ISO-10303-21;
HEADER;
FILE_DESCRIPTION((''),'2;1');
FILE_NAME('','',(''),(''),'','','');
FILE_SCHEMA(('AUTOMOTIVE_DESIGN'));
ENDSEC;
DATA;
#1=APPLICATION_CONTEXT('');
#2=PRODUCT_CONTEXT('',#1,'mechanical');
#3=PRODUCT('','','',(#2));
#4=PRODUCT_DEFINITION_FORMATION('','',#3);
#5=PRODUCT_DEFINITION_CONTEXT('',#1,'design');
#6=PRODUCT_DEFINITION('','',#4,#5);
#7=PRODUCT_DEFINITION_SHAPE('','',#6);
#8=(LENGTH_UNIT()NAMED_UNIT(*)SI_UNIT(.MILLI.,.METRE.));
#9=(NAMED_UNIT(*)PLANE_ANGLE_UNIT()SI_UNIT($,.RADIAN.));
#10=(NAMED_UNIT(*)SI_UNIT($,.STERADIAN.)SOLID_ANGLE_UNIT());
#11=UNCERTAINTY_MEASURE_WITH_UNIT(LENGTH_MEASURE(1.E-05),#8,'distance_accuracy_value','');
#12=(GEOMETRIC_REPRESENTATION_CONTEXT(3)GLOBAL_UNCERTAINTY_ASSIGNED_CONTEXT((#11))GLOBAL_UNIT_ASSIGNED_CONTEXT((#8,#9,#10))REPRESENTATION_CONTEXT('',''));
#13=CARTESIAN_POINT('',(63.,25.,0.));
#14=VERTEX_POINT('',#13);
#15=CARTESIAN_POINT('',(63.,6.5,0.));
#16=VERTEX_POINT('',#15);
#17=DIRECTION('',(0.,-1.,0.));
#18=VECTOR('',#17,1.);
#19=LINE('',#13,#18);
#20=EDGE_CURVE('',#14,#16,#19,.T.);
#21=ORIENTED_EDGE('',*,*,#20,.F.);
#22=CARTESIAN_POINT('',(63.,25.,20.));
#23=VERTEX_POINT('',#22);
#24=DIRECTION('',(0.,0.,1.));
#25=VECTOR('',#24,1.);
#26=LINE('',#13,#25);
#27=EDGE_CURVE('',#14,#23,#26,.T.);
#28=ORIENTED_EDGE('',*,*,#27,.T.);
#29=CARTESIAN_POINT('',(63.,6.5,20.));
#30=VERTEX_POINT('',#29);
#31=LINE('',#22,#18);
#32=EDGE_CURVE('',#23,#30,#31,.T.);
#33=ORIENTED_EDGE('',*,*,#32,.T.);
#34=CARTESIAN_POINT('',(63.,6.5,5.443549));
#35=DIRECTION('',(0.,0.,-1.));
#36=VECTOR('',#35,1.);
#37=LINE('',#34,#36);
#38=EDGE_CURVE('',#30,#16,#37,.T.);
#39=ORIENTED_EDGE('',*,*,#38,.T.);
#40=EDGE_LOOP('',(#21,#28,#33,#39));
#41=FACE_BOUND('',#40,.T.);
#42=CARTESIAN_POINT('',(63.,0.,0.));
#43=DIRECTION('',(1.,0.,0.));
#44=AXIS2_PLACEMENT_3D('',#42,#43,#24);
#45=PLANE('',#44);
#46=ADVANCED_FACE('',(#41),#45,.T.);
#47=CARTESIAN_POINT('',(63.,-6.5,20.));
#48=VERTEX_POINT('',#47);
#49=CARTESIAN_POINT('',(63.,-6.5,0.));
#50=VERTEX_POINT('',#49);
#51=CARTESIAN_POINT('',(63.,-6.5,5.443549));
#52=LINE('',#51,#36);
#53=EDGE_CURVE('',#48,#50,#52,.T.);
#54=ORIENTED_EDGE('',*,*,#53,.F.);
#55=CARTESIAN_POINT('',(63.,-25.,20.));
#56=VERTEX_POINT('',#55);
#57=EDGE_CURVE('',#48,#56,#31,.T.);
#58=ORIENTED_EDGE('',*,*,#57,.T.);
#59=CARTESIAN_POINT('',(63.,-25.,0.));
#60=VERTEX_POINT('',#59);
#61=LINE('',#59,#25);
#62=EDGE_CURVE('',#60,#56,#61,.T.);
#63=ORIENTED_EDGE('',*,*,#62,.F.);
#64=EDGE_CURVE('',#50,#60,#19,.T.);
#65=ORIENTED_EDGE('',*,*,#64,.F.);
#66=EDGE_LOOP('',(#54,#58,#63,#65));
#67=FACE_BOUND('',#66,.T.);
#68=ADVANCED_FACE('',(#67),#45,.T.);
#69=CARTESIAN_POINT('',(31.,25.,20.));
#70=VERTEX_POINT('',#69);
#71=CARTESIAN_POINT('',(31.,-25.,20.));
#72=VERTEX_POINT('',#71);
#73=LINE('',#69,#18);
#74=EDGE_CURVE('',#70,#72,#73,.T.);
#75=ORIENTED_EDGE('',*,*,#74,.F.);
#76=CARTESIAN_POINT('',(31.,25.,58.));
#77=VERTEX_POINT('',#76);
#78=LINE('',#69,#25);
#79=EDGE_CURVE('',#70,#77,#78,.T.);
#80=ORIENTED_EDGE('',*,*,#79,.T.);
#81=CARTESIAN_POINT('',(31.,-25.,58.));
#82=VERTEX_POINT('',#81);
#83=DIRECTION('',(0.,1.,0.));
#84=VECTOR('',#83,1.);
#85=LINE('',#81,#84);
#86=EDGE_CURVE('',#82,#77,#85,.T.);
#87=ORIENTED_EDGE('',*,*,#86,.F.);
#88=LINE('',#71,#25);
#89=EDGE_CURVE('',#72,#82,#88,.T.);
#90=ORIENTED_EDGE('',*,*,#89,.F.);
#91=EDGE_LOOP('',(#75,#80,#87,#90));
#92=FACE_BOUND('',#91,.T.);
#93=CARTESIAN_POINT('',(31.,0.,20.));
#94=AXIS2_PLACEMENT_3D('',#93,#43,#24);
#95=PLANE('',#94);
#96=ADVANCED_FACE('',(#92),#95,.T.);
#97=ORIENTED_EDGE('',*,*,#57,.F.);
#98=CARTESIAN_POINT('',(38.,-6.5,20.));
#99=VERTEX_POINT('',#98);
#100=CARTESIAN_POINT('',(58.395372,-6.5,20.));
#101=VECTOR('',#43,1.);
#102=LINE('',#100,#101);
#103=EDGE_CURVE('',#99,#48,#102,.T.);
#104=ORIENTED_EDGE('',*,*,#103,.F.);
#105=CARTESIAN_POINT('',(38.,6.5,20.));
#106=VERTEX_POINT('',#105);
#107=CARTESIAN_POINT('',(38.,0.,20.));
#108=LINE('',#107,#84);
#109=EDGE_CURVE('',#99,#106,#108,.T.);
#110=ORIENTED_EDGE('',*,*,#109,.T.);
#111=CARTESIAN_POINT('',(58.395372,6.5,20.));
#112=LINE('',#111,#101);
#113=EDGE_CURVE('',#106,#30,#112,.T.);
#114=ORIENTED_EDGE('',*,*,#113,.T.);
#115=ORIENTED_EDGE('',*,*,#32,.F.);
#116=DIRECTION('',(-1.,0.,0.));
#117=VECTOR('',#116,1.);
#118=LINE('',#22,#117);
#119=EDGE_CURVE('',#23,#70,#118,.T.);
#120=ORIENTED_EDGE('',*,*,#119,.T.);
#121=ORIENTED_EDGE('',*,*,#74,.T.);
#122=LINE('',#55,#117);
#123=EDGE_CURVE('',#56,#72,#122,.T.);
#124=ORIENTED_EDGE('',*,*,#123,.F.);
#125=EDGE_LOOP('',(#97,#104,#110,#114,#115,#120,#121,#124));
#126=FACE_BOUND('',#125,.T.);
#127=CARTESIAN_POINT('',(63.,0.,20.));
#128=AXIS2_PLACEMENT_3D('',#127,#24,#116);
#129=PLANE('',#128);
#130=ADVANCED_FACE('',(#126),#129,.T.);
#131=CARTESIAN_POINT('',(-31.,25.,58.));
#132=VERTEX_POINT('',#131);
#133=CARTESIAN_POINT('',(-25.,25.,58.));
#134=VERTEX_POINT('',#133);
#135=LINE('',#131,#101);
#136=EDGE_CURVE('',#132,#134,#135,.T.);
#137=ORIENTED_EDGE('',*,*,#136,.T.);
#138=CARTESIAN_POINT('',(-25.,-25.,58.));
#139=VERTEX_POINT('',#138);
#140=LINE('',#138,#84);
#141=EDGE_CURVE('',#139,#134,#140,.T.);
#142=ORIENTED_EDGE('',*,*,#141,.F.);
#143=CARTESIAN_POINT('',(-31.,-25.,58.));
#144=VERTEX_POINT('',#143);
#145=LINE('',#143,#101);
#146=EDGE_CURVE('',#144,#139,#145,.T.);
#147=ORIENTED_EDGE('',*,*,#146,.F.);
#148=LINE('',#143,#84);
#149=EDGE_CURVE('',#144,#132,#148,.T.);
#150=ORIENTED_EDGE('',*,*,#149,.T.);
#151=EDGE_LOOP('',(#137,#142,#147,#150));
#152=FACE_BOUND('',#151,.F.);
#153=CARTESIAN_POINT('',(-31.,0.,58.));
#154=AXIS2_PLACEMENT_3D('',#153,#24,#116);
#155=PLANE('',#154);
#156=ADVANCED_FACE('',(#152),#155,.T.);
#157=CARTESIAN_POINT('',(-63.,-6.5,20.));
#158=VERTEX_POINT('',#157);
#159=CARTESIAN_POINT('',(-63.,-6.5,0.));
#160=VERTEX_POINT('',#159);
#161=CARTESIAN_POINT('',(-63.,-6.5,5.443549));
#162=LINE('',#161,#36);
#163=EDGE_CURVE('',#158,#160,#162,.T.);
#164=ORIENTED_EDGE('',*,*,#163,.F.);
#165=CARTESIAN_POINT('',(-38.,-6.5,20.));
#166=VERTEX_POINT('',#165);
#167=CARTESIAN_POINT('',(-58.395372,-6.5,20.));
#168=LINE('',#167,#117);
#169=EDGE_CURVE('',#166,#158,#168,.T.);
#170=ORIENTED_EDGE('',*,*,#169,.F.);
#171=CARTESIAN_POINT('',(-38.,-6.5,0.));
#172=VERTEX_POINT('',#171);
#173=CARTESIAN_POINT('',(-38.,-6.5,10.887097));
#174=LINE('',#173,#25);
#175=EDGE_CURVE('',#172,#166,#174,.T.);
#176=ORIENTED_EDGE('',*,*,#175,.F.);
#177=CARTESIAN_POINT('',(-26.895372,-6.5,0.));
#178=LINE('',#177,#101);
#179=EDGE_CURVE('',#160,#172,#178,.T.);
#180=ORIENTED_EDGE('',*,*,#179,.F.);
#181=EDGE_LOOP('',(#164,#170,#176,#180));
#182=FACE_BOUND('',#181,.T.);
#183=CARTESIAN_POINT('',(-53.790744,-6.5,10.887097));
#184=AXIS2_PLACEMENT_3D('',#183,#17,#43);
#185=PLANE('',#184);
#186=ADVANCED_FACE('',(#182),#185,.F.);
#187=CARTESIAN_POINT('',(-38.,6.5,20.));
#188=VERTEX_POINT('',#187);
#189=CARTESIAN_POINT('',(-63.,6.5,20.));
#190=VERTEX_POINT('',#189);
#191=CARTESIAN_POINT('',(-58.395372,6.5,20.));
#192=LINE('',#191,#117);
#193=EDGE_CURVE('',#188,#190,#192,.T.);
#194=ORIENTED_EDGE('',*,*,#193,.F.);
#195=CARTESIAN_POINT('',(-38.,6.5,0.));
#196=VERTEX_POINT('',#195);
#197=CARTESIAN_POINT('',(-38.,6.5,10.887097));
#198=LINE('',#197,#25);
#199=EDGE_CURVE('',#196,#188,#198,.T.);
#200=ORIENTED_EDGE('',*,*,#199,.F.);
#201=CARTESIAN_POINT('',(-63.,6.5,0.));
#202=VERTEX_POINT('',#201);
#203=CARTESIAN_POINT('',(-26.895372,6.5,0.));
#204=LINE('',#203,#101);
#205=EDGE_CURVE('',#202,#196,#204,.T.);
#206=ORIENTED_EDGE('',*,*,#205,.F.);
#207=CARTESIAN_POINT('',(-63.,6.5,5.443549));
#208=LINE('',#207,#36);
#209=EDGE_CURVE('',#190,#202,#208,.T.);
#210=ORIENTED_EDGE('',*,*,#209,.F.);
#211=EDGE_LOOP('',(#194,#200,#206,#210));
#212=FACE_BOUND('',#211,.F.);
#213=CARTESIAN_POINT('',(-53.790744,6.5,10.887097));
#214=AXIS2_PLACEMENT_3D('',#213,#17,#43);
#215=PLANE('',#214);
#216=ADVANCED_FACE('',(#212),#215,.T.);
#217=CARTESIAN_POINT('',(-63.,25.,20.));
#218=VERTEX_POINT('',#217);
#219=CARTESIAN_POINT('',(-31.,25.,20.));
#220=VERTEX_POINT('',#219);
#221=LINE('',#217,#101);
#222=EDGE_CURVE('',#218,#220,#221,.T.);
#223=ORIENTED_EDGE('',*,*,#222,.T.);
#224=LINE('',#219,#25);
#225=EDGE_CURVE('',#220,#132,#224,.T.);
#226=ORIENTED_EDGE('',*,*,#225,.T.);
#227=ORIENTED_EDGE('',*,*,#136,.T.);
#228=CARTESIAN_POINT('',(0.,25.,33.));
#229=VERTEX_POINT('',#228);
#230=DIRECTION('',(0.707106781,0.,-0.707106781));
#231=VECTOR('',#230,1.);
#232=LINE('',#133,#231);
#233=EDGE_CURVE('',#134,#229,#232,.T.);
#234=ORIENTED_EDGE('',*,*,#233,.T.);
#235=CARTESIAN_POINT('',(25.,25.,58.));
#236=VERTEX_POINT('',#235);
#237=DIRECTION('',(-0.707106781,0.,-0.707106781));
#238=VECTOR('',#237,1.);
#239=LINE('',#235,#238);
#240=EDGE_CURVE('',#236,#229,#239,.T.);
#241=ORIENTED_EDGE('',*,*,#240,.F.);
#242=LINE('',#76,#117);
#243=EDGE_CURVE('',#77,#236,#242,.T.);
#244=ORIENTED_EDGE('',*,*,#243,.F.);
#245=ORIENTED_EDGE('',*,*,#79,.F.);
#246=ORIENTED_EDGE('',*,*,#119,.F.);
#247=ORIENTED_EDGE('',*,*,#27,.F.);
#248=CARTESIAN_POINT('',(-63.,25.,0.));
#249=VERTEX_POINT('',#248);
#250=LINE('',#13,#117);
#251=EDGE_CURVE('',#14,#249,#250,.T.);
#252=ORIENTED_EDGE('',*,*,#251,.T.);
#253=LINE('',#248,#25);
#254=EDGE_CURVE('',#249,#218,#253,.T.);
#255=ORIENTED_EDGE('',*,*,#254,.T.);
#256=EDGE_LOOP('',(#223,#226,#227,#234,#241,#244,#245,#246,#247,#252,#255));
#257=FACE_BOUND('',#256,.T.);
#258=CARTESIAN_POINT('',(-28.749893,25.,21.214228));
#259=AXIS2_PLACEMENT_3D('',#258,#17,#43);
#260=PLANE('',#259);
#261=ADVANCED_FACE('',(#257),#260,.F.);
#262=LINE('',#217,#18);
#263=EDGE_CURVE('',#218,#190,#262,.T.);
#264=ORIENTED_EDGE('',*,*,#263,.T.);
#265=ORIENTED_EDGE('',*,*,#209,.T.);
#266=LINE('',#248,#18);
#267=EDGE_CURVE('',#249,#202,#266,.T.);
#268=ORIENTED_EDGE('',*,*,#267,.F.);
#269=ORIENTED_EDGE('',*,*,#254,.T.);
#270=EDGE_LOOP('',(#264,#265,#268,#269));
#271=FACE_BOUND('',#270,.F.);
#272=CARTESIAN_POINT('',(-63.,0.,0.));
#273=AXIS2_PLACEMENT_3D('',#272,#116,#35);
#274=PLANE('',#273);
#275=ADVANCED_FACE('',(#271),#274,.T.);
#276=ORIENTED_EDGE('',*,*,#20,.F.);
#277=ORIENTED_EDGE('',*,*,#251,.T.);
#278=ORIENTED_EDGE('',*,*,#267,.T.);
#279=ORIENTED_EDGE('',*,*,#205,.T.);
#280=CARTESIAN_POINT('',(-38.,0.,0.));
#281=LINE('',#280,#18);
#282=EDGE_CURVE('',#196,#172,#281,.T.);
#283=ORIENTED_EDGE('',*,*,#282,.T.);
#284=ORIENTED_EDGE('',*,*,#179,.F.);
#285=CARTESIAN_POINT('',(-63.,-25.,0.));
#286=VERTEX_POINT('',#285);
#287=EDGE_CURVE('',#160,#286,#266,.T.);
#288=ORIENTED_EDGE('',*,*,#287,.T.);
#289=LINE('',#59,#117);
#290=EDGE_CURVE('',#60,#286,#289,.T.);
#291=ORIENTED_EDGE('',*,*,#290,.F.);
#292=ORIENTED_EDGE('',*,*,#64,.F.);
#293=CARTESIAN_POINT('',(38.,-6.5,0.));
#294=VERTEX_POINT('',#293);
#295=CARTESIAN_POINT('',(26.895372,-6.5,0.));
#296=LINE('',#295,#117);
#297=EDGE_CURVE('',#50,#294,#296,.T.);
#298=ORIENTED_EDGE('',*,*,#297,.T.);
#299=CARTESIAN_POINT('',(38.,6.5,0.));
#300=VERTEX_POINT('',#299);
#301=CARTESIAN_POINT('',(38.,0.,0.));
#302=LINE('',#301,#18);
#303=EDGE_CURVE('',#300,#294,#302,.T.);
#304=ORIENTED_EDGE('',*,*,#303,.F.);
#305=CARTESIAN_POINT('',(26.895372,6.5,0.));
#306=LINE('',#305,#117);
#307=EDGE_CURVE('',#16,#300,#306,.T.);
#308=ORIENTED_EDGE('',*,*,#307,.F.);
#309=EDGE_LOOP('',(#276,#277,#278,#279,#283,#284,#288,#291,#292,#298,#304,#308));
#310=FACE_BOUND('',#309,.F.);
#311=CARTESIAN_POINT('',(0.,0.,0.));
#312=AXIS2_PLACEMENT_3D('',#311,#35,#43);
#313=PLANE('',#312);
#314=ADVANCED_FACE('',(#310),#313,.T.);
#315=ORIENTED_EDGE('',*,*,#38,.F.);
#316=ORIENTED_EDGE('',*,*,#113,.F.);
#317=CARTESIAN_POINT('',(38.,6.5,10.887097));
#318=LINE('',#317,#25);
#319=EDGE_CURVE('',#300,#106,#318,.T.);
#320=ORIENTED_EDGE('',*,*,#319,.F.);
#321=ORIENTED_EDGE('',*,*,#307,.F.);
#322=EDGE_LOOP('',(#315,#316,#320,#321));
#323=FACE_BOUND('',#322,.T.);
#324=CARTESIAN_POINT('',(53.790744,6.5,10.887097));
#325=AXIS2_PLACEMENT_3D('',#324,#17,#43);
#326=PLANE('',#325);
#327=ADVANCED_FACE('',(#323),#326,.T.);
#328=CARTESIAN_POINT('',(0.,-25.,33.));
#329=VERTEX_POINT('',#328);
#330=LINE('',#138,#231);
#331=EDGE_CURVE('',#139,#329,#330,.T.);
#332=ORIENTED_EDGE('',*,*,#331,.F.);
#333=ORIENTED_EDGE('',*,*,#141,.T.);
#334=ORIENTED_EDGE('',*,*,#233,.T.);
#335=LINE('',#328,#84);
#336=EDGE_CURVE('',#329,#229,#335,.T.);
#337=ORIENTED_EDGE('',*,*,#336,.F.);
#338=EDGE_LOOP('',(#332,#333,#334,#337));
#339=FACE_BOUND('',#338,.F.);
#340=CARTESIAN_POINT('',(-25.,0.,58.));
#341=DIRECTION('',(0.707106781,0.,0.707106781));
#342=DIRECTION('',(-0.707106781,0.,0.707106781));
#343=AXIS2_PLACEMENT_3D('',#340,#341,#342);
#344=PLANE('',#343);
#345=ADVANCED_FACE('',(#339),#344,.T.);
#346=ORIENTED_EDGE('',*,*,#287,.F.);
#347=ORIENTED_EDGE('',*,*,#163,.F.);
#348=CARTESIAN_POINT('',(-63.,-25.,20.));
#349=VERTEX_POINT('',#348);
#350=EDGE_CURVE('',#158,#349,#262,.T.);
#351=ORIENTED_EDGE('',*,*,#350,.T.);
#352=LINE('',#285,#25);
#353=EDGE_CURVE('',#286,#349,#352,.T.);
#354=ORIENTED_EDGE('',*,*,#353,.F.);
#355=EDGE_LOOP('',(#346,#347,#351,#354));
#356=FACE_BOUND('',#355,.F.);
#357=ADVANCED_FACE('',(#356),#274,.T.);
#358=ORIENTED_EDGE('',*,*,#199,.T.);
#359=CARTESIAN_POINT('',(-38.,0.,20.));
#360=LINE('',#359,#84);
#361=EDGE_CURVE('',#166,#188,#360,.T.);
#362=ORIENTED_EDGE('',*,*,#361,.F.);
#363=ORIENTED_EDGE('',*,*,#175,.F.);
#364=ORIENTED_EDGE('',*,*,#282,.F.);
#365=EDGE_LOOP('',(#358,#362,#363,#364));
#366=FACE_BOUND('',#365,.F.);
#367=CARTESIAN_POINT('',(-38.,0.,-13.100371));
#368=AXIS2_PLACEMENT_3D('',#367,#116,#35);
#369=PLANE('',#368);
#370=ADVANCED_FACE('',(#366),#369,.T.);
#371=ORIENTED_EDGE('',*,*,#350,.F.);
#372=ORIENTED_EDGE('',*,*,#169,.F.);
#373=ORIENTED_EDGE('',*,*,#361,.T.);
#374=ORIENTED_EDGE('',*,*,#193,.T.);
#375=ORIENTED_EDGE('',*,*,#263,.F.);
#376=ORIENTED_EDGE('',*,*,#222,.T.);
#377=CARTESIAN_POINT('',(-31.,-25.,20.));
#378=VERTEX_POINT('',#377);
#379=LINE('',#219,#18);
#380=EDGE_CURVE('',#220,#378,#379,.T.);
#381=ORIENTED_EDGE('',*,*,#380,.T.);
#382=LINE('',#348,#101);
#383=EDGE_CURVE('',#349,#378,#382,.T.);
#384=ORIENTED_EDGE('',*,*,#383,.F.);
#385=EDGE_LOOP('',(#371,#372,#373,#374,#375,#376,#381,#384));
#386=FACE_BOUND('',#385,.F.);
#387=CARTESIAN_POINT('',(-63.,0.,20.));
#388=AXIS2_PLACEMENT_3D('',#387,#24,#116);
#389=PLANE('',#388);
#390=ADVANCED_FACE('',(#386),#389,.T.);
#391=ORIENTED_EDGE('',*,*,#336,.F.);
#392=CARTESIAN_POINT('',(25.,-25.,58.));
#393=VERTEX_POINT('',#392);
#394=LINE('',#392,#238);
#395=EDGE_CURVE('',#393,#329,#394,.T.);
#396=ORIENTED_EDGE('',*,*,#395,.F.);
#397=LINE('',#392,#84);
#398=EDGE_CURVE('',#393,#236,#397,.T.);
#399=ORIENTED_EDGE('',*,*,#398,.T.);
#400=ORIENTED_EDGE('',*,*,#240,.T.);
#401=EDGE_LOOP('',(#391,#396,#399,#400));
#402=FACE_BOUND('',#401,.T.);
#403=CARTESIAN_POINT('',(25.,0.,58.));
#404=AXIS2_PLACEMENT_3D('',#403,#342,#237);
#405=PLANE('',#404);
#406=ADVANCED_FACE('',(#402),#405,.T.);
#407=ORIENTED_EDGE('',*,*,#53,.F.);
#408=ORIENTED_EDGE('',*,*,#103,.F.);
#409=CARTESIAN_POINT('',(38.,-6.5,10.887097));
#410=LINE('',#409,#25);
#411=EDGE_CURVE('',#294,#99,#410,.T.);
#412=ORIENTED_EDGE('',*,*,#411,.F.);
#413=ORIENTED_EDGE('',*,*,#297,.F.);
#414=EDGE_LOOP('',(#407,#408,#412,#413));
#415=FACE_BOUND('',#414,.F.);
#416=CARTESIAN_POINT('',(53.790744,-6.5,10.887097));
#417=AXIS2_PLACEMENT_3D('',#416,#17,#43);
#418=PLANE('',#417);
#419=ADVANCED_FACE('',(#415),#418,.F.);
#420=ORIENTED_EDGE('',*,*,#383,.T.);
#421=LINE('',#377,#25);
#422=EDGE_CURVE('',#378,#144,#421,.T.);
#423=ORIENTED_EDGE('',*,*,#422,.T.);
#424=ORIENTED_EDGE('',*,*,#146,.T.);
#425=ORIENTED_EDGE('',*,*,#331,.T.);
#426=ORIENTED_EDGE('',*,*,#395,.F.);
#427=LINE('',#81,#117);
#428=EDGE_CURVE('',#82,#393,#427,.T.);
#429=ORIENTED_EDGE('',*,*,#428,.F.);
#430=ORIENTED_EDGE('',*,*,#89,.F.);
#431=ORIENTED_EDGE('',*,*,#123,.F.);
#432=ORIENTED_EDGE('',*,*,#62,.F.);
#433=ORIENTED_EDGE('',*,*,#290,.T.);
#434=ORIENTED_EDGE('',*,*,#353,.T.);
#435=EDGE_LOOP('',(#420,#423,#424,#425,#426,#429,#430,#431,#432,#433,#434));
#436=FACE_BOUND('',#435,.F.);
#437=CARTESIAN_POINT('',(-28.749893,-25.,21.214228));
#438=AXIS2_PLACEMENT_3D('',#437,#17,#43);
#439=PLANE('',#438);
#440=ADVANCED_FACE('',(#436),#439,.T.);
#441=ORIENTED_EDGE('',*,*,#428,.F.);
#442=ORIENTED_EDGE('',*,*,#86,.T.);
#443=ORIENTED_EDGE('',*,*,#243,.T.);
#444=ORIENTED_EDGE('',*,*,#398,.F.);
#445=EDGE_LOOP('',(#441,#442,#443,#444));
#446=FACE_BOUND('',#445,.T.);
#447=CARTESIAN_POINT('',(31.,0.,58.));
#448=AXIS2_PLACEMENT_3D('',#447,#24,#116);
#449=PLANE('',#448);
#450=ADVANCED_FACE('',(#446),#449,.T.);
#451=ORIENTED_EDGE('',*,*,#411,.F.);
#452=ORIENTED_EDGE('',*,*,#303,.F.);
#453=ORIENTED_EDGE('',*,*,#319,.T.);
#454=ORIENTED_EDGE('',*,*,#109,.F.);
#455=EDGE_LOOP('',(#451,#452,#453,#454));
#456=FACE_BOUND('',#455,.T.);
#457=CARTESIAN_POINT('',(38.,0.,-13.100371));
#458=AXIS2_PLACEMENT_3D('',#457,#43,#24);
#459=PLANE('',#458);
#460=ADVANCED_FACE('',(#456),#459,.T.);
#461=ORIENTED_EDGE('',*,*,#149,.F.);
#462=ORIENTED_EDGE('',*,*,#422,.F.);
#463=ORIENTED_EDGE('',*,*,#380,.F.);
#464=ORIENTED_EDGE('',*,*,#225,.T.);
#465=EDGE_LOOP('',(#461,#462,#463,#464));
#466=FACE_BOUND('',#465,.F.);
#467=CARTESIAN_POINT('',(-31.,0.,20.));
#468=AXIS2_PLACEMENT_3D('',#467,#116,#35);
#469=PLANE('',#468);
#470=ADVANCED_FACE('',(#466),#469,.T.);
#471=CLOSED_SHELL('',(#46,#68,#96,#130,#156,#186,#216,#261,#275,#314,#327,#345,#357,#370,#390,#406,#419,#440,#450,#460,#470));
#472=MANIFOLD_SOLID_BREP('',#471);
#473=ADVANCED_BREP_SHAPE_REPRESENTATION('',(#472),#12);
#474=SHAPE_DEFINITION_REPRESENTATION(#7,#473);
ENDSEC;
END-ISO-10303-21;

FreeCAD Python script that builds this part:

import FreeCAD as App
import Part
import Sketcher
from FreeCAD import Vector
Q = App.Units.Quantity


def add_polygon(sketch, points):
    """Adds a closed chain of lines whose ends are joined by coincident constraints."""
    first, n = sketch.GeometryCount, len(points)
    for a, b in zip(points, points[1:] + points[:1]):
        sketch.addGeometry(Part.LineSegment(App.Vector(*a, 0), App.Vector(*b, 0)), False)
    for i in range(n):
        sketch.addConstraint(Sketcher.Constraint("Coincident", first + i, 2, first + (i + 1) % n, 1))

doc = App.newDocument("Part")
body = doc.addObject("PartDesign::Body", "Body")

# Sketch on XZ plane
sketch1 = body.newObject("Sketcher::SketchObject", "Sketch")
sketch1.AttachmentSupport = (doc.getObject("XZ_Plane"), [""])
sketch1.MapMode = "FlatFace"
add_polygon(sketch1, [(0, 33), (0, 0), (63, 0), (63, 20), (31, 20), (31, 58), (25, 58)])  # lines 0-6
sketch1.addConstraint([
    Sketcher.Constraint("Vertical", 0),
    Sketcher.Constraint("Horizontal", 1),
    Sketcher.Constraint("Vertical", 2),
    Sketcher.Constraint("Horizontal", 3),
    Sketcher.Constraint("Vertical", 4),
    Sketcher.Constraint("Horizontal", 5),
    Sketcher.Constraint("Coincident", 0, 2, -1, 1),
    Sketcher.Constraint("DistanceX", 1, 1, 1, 2, Q("63 mm")),
    Sketcher.Constraint("DistanceX", 3, 2, 3, 1, Q("32 mm")),
    Sketcher.Constraint("DistanceX", 5, 2, 5, 1, Q("6 mm")),
    Sketcher.Constraint("DistanceY", 0, 2, 0, 1, Q("33 mm")),
    Sketcher.Constraint("DistanceY", 2, 1, 2, 2, Q("20 mm")),
    Sketcher.Constraint("DistanceY", 4, 1, 4, 2, Q("38 mm")),
])
pad1 = body.newObject("PartDesign::Pad", "Pad")
pad1.Profile = sketch1
pad1.Length = 50
pad1.Midplane = True

# Sketch on XZ plane
sketch2 = body.newObject("Sketcher::SketchObject", "Sketch001")
sketch2.AttachmentSupport = (doc.getObject("XZ_Plane"), [""])
sketch2.MapMode = "FlatFace"
add_polygon(sketch2, [(38, 34.874564), (38, -13.100371), (69.581489, -13.100371), (69.581489, 34.874564)])  # lines 0-3
sketch2.addConstraint([
    Sketcher.Constraint("Vertical", 0),
    Sketcher.Constraint("Horizontal", 1),
    Sketcher.Constraint("Vertical", 2),
    Sketcher.Constraint("Horizontal", 3),
    Sketcher.Constraint("DistanceX", -1, 1, 0, 2, Q("38 mm")),
    Sketcher.Constraint("DistanceX", 1, 1, 1, 2, Q("31.581489 mm")),
    Sketcher.Constraint("DistanceY", 0, 2, 0, 1, Q("47.974935 mm")),
    Sketcher.Constraint("DistanceY", 0, 2, -1, 1, Q("13.100371 mm")),
])
pocket1 = body.newObject("PartDesign::Pocket", "Pocket")
pocket1.Profile = sketch2
pocket1.Length = 13
pocket1.Midplane = True
body2 = doc.addObject("PartDesign::Body", "Body001")
doc.recompute()

body2.BaseFeature = body
doc.recompute()

mirroring = doc.addObject("Part::Mirroring", "Mirroring")
mirroring.Source = body
mirroring.Base = Vector(0, 0, 0)
mirroring.Normal = Vector(1, 0, 0)
body3 = doc.addObject("PartDesign::Body", "Body002")
body3.BaseFeature = mirroring
boolean = body2.newObject("PartDesign::Boolean", "Boolean")
boolean.Type = "Fuse"
boolean.addObjects([body3])
doc.recompute()
mirroring.Visibility = False

doc.recompute()
